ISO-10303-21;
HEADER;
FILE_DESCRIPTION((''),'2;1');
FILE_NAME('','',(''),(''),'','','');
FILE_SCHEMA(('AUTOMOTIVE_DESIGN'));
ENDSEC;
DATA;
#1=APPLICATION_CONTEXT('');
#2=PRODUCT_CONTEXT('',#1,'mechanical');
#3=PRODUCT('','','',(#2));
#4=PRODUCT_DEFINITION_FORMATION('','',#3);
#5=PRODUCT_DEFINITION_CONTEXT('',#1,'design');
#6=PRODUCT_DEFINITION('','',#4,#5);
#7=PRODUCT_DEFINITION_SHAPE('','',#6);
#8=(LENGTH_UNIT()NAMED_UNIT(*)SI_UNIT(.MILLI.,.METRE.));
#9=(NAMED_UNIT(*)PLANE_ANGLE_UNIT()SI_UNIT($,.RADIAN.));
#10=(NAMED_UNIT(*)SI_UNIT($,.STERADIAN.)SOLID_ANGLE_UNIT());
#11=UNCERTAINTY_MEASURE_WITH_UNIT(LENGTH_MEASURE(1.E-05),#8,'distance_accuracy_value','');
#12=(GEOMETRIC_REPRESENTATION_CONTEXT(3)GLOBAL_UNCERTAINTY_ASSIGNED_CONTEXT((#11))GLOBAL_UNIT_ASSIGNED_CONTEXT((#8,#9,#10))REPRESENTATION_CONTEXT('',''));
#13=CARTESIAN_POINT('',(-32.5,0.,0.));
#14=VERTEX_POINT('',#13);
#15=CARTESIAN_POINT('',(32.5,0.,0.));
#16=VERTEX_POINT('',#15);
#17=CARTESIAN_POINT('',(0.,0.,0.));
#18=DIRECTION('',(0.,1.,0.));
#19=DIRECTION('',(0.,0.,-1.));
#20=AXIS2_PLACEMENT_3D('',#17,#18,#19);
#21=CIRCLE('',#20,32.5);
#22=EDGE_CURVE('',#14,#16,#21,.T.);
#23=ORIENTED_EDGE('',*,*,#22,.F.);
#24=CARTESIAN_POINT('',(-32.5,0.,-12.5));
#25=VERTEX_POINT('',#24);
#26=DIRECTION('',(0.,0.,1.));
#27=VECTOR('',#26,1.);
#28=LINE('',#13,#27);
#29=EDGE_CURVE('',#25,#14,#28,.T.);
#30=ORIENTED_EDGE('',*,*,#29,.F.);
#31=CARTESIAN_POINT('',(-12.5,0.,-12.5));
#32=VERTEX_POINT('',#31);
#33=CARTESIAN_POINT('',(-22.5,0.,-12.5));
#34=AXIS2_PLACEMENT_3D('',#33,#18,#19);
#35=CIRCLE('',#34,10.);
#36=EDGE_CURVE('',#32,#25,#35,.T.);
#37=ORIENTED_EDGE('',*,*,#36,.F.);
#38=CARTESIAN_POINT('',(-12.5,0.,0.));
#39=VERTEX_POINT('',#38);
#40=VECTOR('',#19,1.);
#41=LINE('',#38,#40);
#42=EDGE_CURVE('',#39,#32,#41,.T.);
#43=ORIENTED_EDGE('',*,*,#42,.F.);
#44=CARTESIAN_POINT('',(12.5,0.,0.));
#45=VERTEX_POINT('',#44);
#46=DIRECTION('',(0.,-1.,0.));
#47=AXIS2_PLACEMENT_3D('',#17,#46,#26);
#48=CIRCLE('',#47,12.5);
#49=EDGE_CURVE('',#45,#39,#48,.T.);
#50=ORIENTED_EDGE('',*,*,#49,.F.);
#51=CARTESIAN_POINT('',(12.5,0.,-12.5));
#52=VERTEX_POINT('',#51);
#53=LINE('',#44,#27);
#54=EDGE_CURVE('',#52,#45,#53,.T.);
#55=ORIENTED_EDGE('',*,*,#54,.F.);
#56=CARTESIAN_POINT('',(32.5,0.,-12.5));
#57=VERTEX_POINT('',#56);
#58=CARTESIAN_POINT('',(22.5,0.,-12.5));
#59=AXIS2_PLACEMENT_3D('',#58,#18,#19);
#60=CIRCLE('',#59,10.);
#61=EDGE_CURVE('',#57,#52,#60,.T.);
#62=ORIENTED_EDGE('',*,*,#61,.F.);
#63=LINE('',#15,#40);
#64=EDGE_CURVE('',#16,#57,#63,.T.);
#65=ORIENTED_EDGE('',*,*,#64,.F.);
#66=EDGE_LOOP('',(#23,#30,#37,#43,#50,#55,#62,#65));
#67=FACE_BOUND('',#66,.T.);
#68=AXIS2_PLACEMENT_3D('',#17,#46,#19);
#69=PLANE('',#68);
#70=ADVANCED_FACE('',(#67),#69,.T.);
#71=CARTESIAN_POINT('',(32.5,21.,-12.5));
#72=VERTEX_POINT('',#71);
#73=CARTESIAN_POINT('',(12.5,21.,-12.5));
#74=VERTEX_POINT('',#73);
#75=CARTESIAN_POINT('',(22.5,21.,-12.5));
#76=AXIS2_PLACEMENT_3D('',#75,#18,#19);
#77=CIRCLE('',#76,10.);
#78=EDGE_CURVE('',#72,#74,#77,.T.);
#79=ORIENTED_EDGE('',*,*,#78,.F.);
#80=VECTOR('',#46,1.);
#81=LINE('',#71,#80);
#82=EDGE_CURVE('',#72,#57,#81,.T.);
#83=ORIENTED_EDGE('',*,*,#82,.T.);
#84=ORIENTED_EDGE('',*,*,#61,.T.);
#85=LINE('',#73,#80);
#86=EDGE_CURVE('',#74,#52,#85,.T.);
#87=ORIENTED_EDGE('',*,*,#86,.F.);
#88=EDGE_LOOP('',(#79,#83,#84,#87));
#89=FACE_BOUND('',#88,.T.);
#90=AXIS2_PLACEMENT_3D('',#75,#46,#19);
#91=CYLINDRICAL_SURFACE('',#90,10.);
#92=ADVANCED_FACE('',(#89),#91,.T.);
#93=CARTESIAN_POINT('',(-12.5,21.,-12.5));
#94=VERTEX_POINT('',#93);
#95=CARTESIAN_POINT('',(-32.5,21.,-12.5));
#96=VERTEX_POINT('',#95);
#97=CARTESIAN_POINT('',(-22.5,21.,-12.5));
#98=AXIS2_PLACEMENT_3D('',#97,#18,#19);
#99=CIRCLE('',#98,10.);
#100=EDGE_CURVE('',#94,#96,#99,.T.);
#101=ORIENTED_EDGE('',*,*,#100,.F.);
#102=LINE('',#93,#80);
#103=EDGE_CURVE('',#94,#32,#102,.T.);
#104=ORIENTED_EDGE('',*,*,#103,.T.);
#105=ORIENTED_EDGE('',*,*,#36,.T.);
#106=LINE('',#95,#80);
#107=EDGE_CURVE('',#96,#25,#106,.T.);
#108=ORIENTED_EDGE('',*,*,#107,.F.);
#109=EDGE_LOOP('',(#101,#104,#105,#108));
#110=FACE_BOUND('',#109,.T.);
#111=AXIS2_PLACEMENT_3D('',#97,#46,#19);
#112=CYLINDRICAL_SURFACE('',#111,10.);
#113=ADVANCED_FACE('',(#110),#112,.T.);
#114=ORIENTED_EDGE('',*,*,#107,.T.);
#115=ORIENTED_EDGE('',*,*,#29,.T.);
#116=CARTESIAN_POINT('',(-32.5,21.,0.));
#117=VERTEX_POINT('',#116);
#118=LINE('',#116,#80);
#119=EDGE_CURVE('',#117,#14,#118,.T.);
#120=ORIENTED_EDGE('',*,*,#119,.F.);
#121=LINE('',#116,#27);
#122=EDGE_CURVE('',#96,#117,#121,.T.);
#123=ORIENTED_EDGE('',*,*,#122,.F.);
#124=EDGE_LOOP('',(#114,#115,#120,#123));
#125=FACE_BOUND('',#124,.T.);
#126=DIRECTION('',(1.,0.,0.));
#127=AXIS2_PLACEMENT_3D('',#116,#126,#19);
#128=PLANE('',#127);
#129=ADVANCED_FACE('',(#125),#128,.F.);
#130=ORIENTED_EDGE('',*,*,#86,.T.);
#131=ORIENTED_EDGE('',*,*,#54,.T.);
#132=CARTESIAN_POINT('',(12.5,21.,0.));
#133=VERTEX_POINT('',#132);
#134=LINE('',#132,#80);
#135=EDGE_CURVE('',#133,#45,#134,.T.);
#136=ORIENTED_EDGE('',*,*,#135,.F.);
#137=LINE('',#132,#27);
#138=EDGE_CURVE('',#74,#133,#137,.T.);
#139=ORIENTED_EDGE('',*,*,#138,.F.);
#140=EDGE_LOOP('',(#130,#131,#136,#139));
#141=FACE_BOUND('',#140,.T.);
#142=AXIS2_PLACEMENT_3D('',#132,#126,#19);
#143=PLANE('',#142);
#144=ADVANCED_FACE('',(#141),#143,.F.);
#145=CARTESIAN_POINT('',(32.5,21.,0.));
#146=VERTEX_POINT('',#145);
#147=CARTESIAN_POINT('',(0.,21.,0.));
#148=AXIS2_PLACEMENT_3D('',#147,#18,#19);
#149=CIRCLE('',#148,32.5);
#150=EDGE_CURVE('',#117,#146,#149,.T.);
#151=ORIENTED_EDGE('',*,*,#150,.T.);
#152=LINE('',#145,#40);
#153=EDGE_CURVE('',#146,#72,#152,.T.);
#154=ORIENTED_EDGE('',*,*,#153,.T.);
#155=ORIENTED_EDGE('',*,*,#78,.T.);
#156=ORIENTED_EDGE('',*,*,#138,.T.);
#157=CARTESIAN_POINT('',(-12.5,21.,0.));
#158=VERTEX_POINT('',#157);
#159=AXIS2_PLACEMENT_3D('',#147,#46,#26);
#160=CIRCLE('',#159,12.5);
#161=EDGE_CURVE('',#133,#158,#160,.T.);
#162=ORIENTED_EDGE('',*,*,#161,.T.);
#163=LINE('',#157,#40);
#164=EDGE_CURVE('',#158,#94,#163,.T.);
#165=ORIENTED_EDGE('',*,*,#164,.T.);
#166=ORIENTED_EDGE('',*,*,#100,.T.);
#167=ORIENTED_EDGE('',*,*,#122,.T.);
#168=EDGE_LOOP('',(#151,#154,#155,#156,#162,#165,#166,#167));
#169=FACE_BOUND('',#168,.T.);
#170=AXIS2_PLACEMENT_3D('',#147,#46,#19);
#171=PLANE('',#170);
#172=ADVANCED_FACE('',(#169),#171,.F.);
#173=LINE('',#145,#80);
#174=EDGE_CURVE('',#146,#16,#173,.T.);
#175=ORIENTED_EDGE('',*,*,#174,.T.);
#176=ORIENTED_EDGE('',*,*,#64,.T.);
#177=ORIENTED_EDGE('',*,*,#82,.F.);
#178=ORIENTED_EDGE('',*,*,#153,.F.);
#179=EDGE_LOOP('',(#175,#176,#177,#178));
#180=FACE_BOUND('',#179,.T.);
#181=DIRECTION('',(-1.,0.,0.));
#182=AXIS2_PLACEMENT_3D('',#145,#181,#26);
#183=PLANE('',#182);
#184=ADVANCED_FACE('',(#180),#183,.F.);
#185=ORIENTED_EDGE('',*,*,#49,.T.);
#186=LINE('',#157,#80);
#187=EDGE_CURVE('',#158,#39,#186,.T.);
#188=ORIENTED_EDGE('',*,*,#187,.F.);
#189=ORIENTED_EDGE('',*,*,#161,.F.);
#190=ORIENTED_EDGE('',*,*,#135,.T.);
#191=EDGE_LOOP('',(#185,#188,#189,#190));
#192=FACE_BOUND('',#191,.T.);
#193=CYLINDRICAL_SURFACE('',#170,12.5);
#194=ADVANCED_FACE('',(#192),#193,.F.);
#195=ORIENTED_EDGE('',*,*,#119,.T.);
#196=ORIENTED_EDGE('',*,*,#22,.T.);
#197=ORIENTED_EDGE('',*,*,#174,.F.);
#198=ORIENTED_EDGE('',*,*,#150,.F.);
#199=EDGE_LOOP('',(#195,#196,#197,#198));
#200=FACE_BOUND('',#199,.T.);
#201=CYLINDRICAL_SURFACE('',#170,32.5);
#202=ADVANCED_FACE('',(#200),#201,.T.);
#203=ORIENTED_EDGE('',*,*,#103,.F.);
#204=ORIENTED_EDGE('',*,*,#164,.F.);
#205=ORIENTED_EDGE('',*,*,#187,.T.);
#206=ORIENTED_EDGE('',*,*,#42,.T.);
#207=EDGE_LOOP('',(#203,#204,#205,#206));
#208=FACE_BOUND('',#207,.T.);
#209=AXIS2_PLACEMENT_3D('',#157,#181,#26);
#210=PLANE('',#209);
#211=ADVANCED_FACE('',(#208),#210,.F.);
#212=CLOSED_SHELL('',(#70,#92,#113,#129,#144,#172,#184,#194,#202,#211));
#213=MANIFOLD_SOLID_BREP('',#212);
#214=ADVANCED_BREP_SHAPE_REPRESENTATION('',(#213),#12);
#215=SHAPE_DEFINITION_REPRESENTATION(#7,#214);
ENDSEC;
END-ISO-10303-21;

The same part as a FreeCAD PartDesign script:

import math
import FreeCAD as App
import Part
import Sketcher

V = App.Vector
Q = App.Units.Quantity

doc = App.newDocument("Part")
params = doc.addObject("Spreadsheet::Sheet", "Params")
for row, (alias, value) in enumerate([
    ("sketch1_radius", "10 mm"),
    ("sketch1_radius2", "32.5 mm"),
    ("sketch1_height", "12.5 mm"),
    ("pad1_length", "21 mm"),
], start=1):
    params.set(f"A{row}", alias)
    params.set(f"B{row}", "=" + value)
    params.setAlias(f"B{row}", alias)

body = doc.addObject("PartDesign::Body", "Body")

# Sketch on XZ plane
sketch1 = body.newObject("Sketcher::SketchObject", "Sketch")
sketch1.AttachmentSupport = (doc.getObject("XZ_Plane"), [""])
sketch1.MapMode = "FlatFace"
sketch1.addGeometry(Part.LineSegment(V(-32, -12, 0), V(-32, 0, 0)), False)
sketch1.addGeometry(Part.ArcOfCircle(Part.Circle(V(0, 0, 0), V(0, 0, 1), 32), math.radians(0), math.radians(180)), False)
sketch1.addGeometry(Part.LineSegment(V(32, 0, 0), V(32, -12, 0)), False)
sketch1.addGeometry(Part.ArcOfCircle(Part.Circle(V(22, -12, 0), V(0, 0, 1), 10), math.radians(180), math.radians(360)), False)
sketch1.addGeometry(Part.LineSegment(V(12, -12, 0), V(12, 0, 0)), False)
sketch1.addGeometry(Part.ArcOfCircle(Part.Circle(V(0, 0, 0), V(0, 0, 1), 12), math.radians(0), math.radians(180)), False)
sketch1.addGeometry(Part.LineSegment(V(-12, 0, 0), V(-12, -12, 0)), False)
sketch1.addGeometry(Part.ArcOfCircle(Part.Circle(V(-22, -12, 0), V(0, 0, 1), 10), math.radians(180), math.radians(360)), False)
sketch1.addConstraint(Sketcher.Constraint("Tangent", 0, 2, 1, 2))
sketch1.addConstraint(Sketcher.Constraint("Tangent", 1, 1, 2, 1))
sketch1.addConstraint(Sketcher.Constraint("Tangent", 2, 2, 3, 2))
sketch1.addConstraint(Sketcher.Constraint("Tangent", 3, 1, 4, 1))
sketch1.addConstraint(Sketcher.Constraint("Tangent", 4, 2, 5, 1))
sketch1.addConstraint(Sketcher.Constraint("Tangent", 5, 2, 6, 1))
sketch1.addConstraint(Sketcher.Constraint("Tangent", 6, 2, 7, 2))
sketch1.addConstraint(Sketcher.Constraint("Tangent", 7, 1, 0, 1))
sketch1.addConstraint(Sketcher.Constraint("Vertical", 0))
sketch1.addConstraint(Sketcher.Constraint("Vertical", 2))
sketch1.addConstraint(Sketcher.Constraint("Vertical", 4))
sketch1.addConstraint(Sketcher.Constraint("Vertical", 6))
sketch1.addConstraint(Sketcher.Constraint("Coincident", 1, 3, -1, 1))
sketch1.addConstraint(Sketcher.Constraint("Coincident", 5, 3, -1, 1))
sketch1.addConstraint(Sketcher.Constraint("Horizontal", 3, 3, 7, 3))
sketch1.addConstraint(Sketcher.Constraint("Radius", 3, Q("10 mm")))
sketch1.addConstraint(Sketcher.Constraint("Radius", 1, Q("32.5 mm")))
sketch1.addConstraint(Sketcher.Constraint("DistanceY", 0, 1, 0, 2, Q("12.5 mm")))
sketch1.setExpression("Constraints[15]", "Params.sketch1_radius")
sketch1.setExpression("Constraints[16]", "Params.sketch1_radius2")
sketch1.setExpression("Constraints[17]", "Params.sketch1_height")
pad1 = body.newObject("PartDesign::Pad", "Pad")
pad1.Profile = sketch1
pad1.setExpression("Length", "Params.pad1_length")
pad1.Reversed = True

doc.recompute()
